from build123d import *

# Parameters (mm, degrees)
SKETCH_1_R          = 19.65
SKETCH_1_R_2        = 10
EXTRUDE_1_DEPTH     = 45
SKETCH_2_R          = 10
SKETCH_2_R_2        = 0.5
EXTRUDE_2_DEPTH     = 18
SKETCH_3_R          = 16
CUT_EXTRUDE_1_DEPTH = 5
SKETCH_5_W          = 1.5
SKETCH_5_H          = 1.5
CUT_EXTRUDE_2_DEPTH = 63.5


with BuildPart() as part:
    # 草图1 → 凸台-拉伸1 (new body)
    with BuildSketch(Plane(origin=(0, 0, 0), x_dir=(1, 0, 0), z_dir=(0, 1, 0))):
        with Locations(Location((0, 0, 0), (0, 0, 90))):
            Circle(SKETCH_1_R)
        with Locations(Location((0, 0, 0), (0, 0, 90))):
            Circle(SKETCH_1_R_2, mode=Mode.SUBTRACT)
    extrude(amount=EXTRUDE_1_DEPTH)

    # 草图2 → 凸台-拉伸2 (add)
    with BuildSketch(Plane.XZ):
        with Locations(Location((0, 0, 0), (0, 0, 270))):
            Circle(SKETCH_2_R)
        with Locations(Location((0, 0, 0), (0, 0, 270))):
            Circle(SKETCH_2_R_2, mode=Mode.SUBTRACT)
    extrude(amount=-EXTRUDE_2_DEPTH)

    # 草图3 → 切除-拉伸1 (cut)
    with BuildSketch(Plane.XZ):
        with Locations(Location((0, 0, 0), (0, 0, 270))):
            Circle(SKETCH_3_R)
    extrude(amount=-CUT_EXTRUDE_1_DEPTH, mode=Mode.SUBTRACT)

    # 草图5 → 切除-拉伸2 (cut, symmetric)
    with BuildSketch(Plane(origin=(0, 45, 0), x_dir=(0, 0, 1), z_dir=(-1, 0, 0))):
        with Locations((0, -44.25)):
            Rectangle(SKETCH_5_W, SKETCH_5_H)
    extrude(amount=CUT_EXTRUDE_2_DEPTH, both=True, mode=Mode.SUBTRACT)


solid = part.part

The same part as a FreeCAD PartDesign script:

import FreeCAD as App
import Part
import Sketcher
from FreeCAD import Vector

doc = App.newDocument("Part")
body = doc.addObject("PartDesign::Body", "Body")

# Sketch on XZ plane
sketch1 = body.newObject("Sketcher::SketchObject", "Sketch")
sketch1.AttachmentSupport = (doc.getObject("XZ_Plane"), [""])
sketch1.MapMode = "FlatFace"
sketch1.addGeometry(Part.Circle(Vector(0, 0, 0), Vector(0, 0, 1), 20), False)
sketch1.addGeometry(Part.Circle(Vector(0, 0, 0), Vector(0, 0, 1), 10), False)
sketch1.addConstraint(Sketcher.Constraint("Coincident", 0, 3, -1, 1))
sketch1.addConstraint(Sketcher.Constraint("Coincident", 1, 3, -1, 1))
sketch1.addConstraint(Sketcher.Constraint("Diameter", 1, 20.0))
sketch1.addConstraint(Sketcher.Constraint("Diameter", 0, 39.3))
pad1 = body.newObject("PartDesign::Pad", "Pad")
pad1.Profile = sketch1
pad1.Length = 45
pad1.Reversed = True

# Sketch on XZ plane
sketch2 = body.newObject("Sketcher::SketchObject", "Sketch001")
sketch2.AttachmentSupport = (doc.getObject("XZ_Plane"), [""])
sketch2.MapMode = "FlatFace"
sketch2.addGeometry(Part.Circle(Vector(0, 0, 0), Vector(0, 0, 1), 10), False)
sketch2.addGeometry(Part.Circle(Vector(0, 0, 0), Vector(0, 0, 1), 0.5), False)
sketch2.addConstraint(Sketcher.Constraint("Coincident", 0, 3, -1, 1))
sketch2.addConstraint(Sketcher.Constraint("Coincident", 1, 3, -1, 1))
sketch2.addConstraint(Sketcher.Constraint("Diameter", 0, 20.0))
sketch2.addConstraint(Sketcher.Constraint("Diameter", 1, 1.0))
pad2 = body.newObject("PartDesign::Pad", "Pad001")
pad2.Profile = sketch2
pad2.Length = 18
pad2.Reversed = True

# Sketch on XZ plane
sketch3 = body.newObject("Sketcher::SketchObject", "Sketch002")
sketch3.AttachmentSupport = (doc.getObject("XZ_Plane"), [""])
sketch3.MapMode = "FlatFace"
sketch3.addGeometry(Part.Circle(Vector(0, 0, 0), Vector(0, 0, 1), 16), False)
sketch3.addConstraint(Sketcher.Constraint("Coincident", 0, 3, -1, 1))
sketch3.addConstraint(Sketcher.Constraint("Diameter", 0, 32.0))
pocket1 = body.newObject("PartDesign::Pocket", "Pocket")
pocket1.Profile = sketch3
pocket1.Length = 5

# Sketch on YZ plane
sketch4 = body.newObject("Sketcher::SketchObject", "Sketch003")
sketch4.AttachmentSupport = (doc.getObject("YZ_Plane"), [""])
sketch4.MapMode = "FlatFace"
sketch4.addGeometry(Part.LineSegment(Vector(1.5, -0.8, 0), Vector(0, -0.8, 0)), False)
sketch4.addGeometry(Part.LineSegment(Vector(0, -0.8, 0), Vector(0, 0.8, 0)), False)
sketch4.addGeometry(Part.LineSegment(Vector(0, 0.8, 0), Vector(1.5, 0.8, 0)), False)
sketch4.addGeometry(Part.LineSegment(Vector(1.5, 0.8, 0), Vector(1.5, -0.8, 0)), False)
sketch4.addConstraint(Sketcher.Constraint("Coincident", 0, 2, 1, 1))
sketch4.addConstraint(Sketcher.Constraint("Coincident", 1, 2, 2, 1))
sketch4.addConstraint(Sketcher.Constraint("Coincident", 2, 2, 3, 1))
sketch4.addConstraint(Sketcher.Constraint("Coincident", 3, 2, 0, 1))
sketch4.addConstraint(Sketcher.Constraint("Horizontal", 0))
sketch4.addConstraint(Sketcher.Constraint("Vertical", 1))
sketch4.addConstraint(Sketcher.Constraint("Horizontal", 2))
sketch4.addConstraint(Sketcher.Constraint("Vertical", 3))
sketch4.addConstraint(Sketcher.Constraint("Symmetric", 0, 2, 1, 2, -1, 1))
sketch4.addConstraint(Sketcher.Constraint("Equal", 2, 1))
sketch4.addConstraint(Sketcher.Constraint("DistanceX", 0, 2, 0, 1, 1.5))
pocket2 = body.newObject("PartDesign::Pocket", "Pocket001")
pocket2.Profile = sketch4
pocket2.Length = 127
pocket2.Midplane = True

doc.recompute()
